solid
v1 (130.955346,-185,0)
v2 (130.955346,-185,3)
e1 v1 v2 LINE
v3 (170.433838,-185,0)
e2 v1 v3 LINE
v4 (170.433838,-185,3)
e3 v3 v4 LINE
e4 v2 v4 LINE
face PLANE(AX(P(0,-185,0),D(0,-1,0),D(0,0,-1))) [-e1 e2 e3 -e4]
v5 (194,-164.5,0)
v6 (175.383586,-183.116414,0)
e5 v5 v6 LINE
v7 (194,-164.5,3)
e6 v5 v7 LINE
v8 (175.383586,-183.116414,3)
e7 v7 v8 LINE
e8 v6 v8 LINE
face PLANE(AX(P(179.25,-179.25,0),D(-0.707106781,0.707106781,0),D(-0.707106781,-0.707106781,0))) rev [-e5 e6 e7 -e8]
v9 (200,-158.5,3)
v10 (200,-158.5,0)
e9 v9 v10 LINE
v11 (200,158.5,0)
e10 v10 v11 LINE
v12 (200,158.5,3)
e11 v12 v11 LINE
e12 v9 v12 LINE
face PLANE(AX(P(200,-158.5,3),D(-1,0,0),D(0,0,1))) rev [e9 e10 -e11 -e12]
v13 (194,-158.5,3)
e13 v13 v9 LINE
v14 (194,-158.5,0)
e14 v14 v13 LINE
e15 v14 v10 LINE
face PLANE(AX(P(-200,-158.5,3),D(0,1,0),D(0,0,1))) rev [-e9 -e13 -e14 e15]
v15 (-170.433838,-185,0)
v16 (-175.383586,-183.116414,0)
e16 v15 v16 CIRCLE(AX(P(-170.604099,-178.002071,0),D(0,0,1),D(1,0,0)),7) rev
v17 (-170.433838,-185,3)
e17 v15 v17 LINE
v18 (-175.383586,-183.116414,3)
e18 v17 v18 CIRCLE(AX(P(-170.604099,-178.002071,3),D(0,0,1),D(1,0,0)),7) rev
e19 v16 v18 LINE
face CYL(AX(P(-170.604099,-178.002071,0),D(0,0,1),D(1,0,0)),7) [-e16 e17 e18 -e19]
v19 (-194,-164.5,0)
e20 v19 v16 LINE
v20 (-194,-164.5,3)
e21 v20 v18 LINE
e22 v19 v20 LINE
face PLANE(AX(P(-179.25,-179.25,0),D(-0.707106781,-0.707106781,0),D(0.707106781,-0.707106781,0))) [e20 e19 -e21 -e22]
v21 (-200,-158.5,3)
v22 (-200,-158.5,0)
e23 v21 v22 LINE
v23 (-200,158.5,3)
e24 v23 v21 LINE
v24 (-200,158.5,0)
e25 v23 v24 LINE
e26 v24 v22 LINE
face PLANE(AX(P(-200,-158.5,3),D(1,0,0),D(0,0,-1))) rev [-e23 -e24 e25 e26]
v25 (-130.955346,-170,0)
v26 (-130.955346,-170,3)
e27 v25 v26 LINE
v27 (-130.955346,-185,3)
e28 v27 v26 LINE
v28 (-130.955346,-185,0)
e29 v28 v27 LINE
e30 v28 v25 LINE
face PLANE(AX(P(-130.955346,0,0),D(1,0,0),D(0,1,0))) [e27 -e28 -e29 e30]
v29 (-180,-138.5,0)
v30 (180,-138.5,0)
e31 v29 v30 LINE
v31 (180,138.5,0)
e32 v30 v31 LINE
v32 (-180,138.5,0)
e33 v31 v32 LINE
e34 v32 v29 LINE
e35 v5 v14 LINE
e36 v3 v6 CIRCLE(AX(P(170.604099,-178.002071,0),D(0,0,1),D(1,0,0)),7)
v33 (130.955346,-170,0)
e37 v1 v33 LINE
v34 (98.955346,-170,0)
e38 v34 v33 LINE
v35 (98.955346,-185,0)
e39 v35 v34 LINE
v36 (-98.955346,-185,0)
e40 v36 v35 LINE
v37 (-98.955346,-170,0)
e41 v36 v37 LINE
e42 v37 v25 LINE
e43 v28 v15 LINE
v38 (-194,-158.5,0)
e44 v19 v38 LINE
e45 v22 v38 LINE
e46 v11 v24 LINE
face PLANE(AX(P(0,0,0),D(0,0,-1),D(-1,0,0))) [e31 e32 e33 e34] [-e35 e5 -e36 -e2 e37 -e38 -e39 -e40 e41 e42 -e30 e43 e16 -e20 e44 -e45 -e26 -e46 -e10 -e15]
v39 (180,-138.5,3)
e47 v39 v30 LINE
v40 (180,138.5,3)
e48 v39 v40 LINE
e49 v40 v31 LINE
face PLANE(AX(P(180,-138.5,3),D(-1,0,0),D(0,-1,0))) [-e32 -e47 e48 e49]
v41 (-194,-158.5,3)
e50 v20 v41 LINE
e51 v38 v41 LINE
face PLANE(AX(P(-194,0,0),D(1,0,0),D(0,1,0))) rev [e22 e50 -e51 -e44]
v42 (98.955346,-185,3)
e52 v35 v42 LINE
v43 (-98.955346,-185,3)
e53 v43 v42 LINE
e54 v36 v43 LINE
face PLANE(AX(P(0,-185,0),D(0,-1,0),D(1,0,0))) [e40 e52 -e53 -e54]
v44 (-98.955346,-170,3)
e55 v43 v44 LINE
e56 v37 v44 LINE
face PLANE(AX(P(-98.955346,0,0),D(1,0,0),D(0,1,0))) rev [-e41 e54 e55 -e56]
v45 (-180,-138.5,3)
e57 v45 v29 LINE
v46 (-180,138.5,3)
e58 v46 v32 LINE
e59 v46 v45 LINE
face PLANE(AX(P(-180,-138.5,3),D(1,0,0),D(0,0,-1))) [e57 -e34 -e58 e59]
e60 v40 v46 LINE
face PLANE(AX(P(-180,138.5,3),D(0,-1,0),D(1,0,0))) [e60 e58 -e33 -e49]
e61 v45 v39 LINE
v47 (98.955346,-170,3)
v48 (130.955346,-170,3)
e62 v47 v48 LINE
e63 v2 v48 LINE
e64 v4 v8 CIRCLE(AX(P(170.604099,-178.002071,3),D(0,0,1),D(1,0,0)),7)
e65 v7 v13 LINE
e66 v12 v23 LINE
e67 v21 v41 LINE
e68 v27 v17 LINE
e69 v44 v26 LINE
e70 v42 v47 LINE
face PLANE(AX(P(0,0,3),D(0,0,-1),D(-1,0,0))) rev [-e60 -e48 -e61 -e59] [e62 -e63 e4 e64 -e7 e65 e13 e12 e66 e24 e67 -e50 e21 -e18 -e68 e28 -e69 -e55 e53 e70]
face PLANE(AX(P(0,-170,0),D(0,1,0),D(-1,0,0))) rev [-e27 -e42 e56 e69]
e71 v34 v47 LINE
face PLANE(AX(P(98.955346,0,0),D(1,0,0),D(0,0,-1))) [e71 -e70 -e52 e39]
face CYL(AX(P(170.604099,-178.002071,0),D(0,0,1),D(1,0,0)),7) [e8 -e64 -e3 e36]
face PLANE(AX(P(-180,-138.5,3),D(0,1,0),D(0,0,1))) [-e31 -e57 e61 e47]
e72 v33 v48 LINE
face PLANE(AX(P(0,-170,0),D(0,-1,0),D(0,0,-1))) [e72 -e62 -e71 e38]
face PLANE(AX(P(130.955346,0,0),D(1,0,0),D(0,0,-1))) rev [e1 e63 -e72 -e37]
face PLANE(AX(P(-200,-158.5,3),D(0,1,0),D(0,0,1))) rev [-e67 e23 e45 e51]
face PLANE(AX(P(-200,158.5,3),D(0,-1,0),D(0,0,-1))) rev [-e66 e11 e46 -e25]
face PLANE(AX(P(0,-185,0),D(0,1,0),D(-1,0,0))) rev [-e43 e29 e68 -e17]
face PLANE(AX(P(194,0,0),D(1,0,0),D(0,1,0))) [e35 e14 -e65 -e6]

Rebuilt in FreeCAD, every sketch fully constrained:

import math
import FreeCAD as App
import Part
import Sketcher
from FreeCAD import Vector
Q = App.Units.Quantity


def add_polygon(sketch, points):
    """Adds a closed chain of lines whose ends are joined by coincident constraints."""
    first, n = sketch.GeometryCount, len(points)
    for a, b in zip(points, points[1:] + points[:1]):
        sketch.addGeometry(Part.LineSegment(App.Vector(*a, 0), App.Vector(*b, 0)), False)
    for i in range(n):
        sketch.addConstraint(Sketcher.Constraint("Coincident", first + i, 2, first + (i + 1) % n, 1))

doc = App.newDocument("Part")
body = doc.addObject("PartDesign::Body", "Body")

sketch1 = body.newObject("Sketcher::SketchObject", "Sketch")
sketch1.AttachmentSupport = (doc.getObject("XY_Plane"), [""])
sketch1.MapMode = "FlatFace"
add_polygon(sketch1, [(-200, 158.5), (-200, -158.5), (200, -158.5), (200, 158.5)])
add_polygon(sketch1, [(180, -138.5), (-180, -138.5), (-180, 138.5), (180, 138.5)])
sketch1.addConstraint([
    Sketcher.Constraint("Vertical", 0),
    Sketcher.Constraint("Horizontal", 1),
    Sketcher.Constraint("Vertical", 2),
    Sketcher.Constraint("Horizontal", 3),
    Sketcher.Constraint("Horizontal", 4),
    Sketcher.Constraint("Vertical", 5),
    Sketcher.Constraint("Horizontal", 6),
    Sketcher.Constraint("Vertical", 7),
    Sketcher.Constraint("Symmetric", 0, 2, 2, 2, -1, 1),
    Sketcher.Constraint("Symmetric", 4, 2, 6, 2, -1, 1),
    Sketcher.Constraint("DistanceX", 1, 1, 1, 2, Q("400 mm")),
    Sketcher.Constraint("DistanceX", 4, 2, 4, 1, Q("360 mm")),
    Sketcher.Constraint("DistanceY", 0, 2, 0, 1, Q("317 mm")),
    Sketcher.Constraint("DistanceY", 5, 1, 5, 2, Q("277 mm")),
])
pad1 = body.newObject("PartDesign::Pad", "Pad")
pad1.Profile = sketch1
pad1.Length = 3

sketch2 = body.newObject("Sketcher::SketchObject", "Sketch001")
sketch2.AttachmentSupport = (doc.getObject("XY_Plane"), [""])
sketch2.MapMode = "FlatFace"
sketch2.AttachmentOffset = App.Placement(Vector(0, 0, 3), App.Rotation())
sketch2.addGeometry([
    Part.LineSegment(Vector(-98.955346, -185, 0), Vector(98.955346, -185, 0)),
    Part.LineSegment(Vector(98.955346, -185, 0), Vector(98.955346, -170, 0)),
    Part.LineSegment(Vector(98.955346, -170, 0), Vector(130.955346, -170, 0)),
    Part.LineSegment(Vector(130.955346, -170, 0), Vector(130.955346, -185, 0)),
    Part.LineSegment(Vector(130.955346, -185, 0), Vector(170.433838, -185, 0)),
    Part.ArcOfCircle(Part.Circle(Vector(170.604099, -178.002071, 0), Vector(0, 0, 1), 7), math.radians(-91.39374), math.radians(-46.938434)),
    Part.LineSegment(Vector(175.383586, -183.116414, 0), Vector(194, -164.5, 0)),
    Part.LineSegment(Vector(194, -164.5, 0), Vector(194, -158.5, 0)),
    Part.LineSegment(Vector(194, -158.5, 0), Vector(-194, -158.5, 0)),
    Part.LineSegment(Vector(-194, -158.5, 0), Vector(-194, -164.5, 0)),
    Part.LineSegment(Vector(-194, -164.5, 0), Vector(-175.383586, -183.116414, 0)),
    Part.ArcOfCircle(Part.Circle(Vector(-170.604099, -178.002071, 0), Vector(0, 0, 1), 7), math.radians(-133.061566), math.radians(-88.60626)),
    Part.LineSegment(Vector(-170.433838, -185, 0), Vector(-130.955346, -185, 0)),
    Part.LineSegment(Vector(-130.955346, -185, 0), Vector(-130.955346, -170, 0)),
    Part.LineSegment(Vector(-130.955346, -170, 0), Vector(-98.955346, -170, 0)),
    Part.LineSegment(Vector(-98.955346, -170, 0), Vector(-98.955346, -185, 0)),
], False)
sketch2.addConstraint([
    Sketcher.Constraint("Coincident", 0, 2, 1, 1),
    Sketcher.Constraint("Coincident", 1, 2, 2, 1),
    Sketcher.Constraint("Coincident", 2, 2, 3, 1),
    Sketcher.Constraint("Coincident", 3, 2, 4, 1),
    Sketcher.Constraint("Coincident", 4, 2, 5, 1),
    Sketcher.Constraint("Coincident", 5, 2, 6, 1),
    Sketcher.Constraint("Coincident", 6, 2, 7, 1),
    Sketcher.Constraint("Coincident", 7, 2, 8, 1),
    Sketcher.Constraint("Coincident", 8, 2, 9, 1),
    Sketcher.Constraint("Coincident", 9, 2, 10, 1),
    Sketcher.Constraint("Coincident", 10, 2, 11, 1),
    Sketcher.Constraint("Coincident", 11, 2, 12, 1),
    Sketcher.Constraint("Coincident", 12, 2, 13, 1),
    Sketcher.Constraint("Coincident", 13, 2, 14, 1),
    Sketcher.Constraint("Coincident", 14, 2, 15, 1),
    Sketcher.Constraint("Coincident", 15, 2, 0, 1),
    Sketcher.Constraint("Horizontal", 0),
    Sketcher.Constraint("Vertical", 1),
    Sketcher.Constraint("Horizontal", 2),
    Sketcher.Constraint("Vertical", 3),
    Sketcher.Constraint("Horizontal", 4),
    Sketcher.Constraint("Vertical", 7),
    Sketcher.Constraint("Horizontal", 8),
    Sketcher.Constraint("Vertical", 9),
    Sketcher.Constraint("Horizontal", 12),
    Sketcher.Constraint("Vertical", 13),
    Sketcher.Constraint("Horizontal", 14),
    Sketcher.Constraint("Vertical", 15),
    Sketcher.Constraint("Equal", 5, 11),
    Sketcher.Constraint("Symmetric", 5, 3, 11, 3, -2),
    Sketcher.Constraint("Symmetric", 6, 2, 9, 2, -2),
    Sketcher.Constraint("Symmetric", 3, 2, 12, 2, -2),
    Sketcher.Constraint("Symmetric", 1, 2, 14, 2, -2),
    Sketcher.Constraint("Perpendicular", 6, 10),
    Sketcher.Constraint("Horizontal", 0, 2, 3, 2),
    Sketcher.Constraint("Horizontal", 5, 2, 10, 2),
    Sketcher.Constraint("Radius", 5, Q("7 mm")),
    Sketcher.Constraint("DistanceX", 2, 1, 2, 2, Q("32 mm")),
    Sketcher.Constraint("DistanceX", 8, 2, 8, 1, Q("388 mm")),
    Sketcher.Constraint("DistanceY", 1, 1, 1, 2, Q("15 mm")),
    Sketcher.Constraint("DistanceY", 7, 1, 7, 2, Q("6 mm")),
    Sketcher.Constraint("DistanceY", 0, 2, -1, 1, Q("185 mm")),
    Sketcher.Constraint("DistanceY", 6, 2, -1, 1, Q("164.5 mm")),
    Sketcher.Constraint("DistanceX", 0, 1, 0, 2, Q("197.910691 mm")),
    Sketcher.Constraint("DistanceX", -1, 1, 5, 3, Q("170.604099 mm")),
    Sketcher.Constraint("DistanceX", 4, 1, 4, 2, Q("39.478493 mm")),
])
pad2 = body.newObject("PartDesign::Pad", "Pad001")
pad2.Profile = sketch2
pad2.Length = 3
pad2.Reversed = True

doc.recompute()
